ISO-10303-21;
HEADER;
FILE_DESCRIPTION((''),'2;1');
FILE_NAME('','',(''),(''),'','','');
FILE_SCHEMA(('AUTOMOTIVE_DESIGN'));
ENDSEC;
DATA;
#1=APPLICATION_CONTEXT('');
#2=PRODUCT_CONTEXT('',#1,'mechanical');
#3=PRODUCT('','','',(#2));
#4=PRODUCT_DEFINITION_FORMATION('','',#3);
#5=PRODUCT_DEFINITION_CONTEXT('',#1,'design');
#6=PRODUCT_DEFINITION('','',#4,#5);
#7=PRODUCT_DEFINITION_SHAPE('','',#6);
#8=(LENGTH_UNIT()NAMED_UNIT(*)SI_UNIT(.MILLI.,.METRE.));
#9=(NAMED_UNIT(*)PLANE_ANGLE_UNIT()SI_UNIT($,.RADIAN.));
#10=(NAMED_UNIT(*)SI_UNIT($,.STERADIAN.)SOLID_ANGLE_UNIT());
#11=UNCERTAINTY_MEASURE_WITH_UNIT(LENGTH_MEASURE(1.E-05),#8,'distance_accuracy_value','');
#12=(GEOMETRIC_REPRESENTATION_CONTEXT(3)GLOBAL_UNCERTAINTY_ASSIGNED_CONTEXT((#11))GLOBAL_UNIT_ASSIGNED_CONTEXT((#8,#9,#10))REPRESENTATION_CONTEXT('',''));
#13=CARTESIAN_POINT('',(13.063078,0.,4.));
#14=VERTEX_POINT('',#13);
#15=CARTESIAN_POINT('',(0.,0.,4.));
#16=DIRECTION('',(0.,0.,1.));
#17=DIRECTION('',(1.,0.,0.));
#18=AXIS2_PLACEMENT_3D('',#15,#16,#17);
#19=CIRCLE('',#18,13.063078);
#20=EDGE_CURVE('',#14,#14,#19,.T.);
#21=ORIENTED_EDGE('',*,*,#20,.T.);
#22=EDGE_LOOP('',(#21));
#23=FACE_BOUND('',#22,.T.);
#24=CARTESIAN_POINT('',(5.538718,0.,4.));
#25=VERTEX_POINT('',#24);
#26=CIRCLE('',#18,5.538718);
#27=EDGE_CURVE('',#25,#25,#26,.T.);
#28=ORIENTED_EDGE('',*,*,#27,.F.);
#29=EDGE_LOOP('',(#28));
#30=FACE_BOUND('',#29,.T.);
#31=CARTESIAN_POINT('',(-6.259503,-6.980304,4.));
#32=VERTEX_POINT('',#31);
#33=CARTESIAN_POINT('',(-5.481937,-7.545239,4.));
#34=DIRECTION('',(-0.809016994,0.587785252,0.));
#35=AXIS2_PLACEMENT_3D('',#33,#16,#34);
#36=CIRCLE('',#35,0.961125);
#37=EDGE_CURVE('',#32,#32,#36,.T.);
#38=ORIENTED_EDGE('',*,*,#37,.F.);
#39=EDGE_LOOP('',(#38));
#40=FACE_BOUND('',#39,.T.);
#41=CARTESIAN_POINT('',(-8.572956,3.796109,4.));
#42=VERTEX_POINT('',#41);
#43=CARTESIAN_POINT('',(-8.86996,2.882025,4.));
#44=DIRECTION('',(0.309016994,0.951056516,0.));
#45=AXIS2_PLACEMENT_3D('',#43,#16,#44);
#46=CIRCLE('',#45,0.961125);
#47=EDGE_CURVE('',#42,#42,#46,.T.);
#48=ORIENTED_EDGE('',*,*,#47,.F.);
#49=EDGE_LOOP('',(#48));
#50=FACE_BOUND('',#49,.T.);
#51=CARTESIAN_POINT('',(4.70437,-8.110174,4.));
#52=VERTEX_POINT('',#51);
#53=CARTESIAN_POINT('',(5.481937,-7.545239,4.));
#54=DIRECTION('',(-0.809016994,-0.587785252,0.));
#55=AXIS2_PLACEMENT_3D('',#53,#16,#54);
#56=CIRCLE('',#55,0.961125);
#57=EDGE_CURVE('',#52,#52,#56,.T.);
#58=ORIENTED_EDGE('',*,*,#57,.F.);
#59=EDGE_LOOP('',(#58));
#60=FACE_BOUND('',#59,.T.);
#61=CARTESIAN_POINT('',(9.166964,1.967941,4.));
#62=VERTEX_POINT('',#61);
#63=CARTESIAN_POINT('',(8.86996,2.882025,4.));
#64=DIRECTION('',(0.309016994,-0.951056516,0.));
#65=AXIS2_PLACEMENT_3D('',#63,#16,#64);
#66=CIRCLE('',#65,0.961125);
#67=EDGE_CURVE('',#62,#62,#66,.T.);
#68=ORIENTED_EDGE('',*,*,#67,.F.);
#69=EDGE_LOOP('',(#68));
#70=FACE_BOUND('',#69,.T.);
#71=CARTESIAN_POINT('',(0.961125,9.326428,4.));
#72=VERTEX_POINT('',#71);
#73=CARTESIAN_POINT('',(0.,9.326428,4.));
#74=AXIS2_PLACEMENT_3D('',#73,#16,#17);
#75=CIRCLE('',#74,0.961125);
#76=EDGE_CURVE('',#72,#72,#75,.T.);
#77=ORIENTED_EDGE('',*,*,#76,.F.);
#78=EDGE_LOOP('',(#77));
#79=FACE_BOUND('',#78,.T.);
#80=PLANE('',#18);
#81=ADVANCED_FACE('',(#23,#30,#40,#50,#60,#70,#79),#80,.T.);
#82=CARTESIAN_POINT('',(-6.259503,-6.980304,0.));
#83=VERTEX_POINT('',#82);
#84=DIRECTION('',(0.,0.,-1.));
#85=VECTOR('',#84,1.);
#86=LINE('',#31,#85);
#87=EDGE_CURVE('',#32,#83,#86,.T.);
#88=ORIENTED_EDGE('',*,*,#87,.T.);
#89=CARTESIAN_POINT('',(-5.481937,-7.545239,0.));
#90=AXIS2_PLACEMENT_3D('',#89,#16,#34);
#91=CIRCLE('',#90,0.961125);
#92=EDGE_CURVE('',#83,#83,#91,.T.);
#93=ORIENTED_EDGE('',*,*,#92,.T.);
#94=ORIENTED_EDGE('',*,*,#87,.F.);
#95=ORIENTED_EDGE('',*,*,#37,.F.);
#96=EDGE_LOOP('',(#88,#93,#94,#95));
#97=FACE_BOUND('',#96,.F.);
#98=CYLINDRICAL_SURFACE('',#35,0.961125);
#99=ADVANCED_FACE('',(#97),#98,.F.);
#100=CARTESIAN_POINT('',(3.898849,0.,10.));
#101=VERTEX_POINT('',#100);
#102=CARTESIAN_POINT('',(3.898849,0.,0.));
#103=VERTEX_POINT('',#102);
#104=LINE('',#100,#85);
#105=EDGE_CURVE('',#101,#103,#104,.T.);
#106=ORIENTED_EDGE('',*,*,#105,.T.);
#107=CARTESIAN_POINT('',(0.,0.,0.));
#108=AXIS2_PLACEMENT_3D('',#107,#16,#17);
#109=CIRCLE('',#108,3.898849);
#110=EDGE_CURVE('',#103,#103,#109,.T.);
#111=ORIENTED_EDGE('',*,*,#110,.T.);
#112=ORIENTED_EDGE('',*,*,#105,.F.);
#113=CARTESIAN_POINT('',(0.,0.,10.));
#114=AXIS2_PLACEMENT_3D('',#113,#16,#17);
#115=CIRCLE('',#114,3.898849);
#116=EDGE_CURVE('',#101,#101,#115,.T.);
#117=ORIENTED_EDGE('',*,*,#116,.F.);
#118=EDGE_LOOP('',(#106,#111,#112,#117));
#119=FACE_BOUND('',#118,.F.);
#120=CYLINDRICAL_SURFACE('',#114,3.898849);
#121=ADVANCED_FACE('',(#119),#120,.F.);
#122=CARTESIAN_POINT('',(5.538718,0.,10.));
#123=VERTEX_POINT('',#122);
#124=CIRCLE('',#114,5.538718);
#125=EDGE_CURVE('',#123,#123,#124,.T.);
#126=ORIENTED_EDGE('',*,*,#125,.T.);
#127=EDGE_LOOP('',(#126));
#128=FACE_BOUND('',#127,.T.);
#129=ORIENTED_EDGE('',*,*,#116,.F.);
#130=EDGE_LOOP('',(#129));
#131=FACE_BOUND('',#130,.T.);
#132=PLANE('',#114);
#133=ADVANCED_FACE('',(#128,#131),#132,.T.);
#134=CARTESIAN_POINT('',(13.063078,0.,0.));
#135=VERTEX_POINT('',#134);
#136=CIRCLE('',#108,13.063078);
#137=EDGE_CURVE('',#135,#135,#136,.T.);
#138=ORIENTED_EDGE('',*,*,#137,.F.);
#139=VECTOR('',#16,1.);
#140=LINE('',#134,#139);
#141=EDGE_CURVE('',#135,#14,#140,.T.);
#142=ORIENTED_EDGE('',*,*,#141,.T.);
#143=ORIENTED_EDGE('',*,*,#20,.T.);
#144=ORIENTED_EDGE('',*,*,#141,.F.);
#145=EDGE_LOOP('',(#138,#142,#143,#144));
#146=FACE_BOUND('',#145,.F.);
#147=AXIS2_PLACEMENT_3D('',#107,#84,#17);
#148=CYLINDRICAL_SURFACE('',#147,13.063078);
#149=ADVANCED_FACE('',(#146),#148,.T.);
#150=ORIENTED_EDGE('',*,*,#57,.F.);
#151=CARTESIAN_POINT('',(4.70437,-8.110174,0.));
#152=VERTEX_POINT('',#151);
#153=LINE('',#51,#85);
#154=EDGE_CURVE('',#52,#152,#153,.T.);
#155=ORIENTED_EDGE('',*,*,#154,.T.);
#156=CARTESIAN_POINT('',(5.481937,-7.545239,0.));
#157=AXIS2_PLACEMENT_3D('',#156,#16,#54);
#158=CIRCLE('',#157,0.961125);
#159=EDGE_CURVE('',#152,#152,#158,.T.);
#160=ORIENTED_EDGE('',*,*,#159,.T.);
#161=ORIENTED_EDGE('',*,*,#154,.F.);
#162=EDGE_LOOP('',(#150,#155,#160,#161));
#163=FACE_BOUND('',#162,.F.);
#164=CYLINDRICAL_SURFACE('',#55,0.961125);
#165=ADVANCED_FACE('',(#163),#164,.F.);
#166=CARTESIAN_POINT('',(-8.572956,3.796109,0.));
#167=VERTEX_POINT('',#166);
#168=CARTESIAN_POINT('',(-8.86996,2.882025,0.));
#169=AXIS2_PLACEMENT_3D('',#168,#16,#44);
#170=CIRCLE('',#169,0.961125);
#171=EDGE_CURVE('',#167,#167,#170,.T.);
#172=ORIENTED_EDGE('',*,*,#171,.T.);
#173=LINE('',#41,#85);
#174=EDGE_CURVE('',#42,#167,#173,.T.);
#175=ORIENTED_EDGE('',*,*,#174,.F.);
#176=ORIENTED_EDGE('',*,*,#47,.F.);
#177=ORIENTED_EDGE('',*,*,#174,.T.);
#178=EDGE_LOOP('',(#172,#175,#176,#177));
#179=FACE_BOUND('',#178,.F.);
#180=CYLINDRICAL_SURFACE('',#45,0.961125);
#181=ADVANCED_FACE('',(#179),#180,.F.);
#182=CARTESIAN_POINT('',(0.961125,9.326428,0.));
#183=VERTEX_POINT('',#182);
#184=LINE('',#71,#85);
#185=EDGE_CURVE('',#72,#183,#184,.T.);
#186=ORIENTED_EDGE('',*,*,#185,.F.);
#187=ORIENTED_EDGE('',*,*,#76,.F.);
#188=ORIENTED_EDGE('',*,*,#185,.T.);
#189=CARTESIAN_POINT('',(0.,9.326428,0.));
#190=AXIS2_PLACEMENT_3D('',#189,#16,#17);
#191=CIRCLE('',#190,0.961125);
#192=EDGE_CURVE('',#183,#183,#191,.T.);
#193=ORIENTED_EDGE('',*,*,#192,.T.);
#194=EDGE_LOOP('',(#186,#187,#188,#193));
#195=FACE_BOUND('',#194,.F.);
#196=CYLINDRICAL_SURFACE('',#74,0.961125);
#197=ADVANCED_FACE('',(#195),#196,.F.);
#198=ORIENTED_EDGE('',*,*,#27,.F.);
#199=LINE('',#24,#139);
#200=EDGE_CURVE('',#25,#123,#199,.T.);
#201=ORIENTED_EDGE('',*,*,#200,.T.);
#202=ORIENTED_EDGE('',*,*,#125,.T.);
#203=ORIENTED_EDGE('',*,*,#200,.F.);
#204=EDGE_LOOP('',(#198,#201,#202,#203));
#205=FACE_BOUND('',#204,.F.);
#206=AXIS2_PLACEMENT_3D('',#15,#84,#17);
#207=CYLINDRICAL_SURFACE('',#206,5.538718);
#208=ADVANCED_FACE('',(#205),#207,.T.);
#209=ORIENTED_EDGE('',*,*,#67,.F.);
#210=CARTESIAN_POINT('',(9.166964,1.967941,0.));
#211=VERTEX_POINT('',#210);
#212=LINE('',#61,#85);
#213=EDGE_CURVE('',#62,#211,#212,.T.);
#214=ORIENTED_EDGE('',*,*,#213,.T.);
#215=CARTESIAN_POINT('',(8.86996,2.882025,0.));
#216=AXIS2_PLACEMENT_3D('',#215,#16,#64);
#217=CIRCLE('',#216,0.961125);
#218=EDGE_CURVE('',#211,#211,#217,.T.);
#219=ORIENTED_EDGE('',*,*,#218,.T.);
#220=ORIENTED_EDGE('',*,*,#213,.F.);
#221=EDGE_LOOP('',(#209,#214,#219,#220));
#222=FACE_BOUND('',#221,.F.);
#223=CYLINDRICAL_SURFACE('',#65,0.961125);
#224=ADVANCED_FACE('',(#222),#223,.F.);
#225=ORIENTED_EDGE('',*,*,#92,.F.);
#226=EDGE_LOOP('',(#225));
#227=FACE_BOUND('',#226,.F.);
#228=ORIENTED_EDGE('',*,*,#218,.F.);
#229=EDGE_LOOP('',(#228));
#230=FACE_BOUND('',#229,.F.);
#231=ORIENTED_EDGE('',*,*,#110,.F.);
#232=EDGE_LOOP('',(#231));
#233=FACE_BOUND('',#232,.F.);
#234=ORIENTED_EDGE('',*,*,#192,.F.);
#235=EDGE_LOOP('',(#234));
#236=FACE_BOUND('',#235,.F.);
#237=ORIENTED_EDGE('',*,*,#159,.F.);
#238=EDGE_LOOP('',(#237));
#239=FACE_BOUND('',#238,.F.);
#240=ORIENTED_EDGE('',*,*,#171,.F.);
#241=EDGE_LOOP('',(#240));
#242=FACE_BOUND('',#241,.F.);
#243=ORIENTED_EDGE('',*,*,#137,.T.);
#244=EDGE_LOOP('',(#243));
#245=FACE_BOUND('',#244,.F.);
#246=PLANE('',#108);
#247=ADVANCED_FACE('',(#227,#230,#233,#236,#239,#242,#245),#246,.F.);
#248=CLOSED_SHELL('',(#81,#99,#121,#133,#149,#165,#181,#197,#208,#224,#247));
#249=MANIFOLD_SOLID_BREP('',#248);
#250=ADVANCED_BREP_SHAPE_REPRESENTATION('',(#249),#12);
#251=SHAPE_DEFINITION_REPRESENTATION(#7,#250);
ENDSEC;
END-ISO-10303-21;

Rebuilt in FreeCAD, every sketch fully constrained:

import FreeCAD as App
import Part
import Sketcher

V = App.Vector

doc = App.newDocument("Part")
body = doc.addObject("PartDesign::Body", "Body")

# Sketch on XY plane
sketch1 = body.newObject("Sketcher::SketchObject", "Sketch")
sketch1.AttachmentSupport = (doc.getObject("XY_Plane"), [""])
sketch1.MapMode = "FlatFace"
sketch1.addGeometry(Part.Circle(V(0, 0, 0), V(0, 0, 1), 13.063078), False)
sketch1.addConstraint(Sketcher.Constraint("Coincident", 0, 3, -1, 1))
sketch1.addConstraint(Sketcher.Constraint("Diameter", 0, 26.126156))
pad1 = body.newObject("PartDesign::Pad", "Pad")
pad1.Profile = sketch1
pad1.Length = 4

# Sketch on XY plane
sketch2 = body.newObject("Sketcher::SketchObject", "Sketch001")
sketch2.AttachmentSupport = (doc.getObject("XY_Plane"), [""])
sketch2.MapMode = "FlatFace"
sketch2.AttachmentOffset = App.Placement(V(0, 0, 4), App.Rotation())
sketch2.addGeometry(Part.Circle(V(0, 9.326428, 0), V(0, 0, 1), 0.961125), False)
sketch2.addConstraint(Sketcher.Constraint("PointOnObject", 0, 3, -2))
sketch2.addConstraint(Sketcher.Constraint("Diameter", 0, 1.92225))
sketch2.addConstraint(Sketcher.Constraint("DistanceY", -1, 1, 0, 3, 9.326428))
pocket1 = body.newObject("PartDesign::Pocket", "Pocket")
pocket1.Profile = sketch2
pocket1.Type = "ThroughAll"
doc.recompute()

polarpattern = body.newObject("PartDesign::PolarPattern", "PolarPattern")
polarpattern.Originals = [pocket1]
polarpattern.Axis = (doc.getObject("Z_Axis"), [""])
polarpattern.Angle = 360
polarpattern.Occurrences = 5
body.Tip = polarpattern

# Sketch on XY plane
sketch3 = body.newObject("Sketcher::SketchObject", "Sketch002")
sketch3.AttachmentSupport = (doc.getObject("XY_Plane"), [""])
sketch3.MapMode = "FlatFace"
sketch3.AttachmentOffset = App.Placement(V(0, 0, 4), App.Rotation())
sketch3.addGeometry(Part.Circle(V(0, 0, 0), V(0, 0, 1), 5.538718), False)
sketch3.addConstraint(Sketcher.Constraint("Coincident", 0, 3, -1, 1))
sketch3.addConstraint(Sketcher.Constraint("Diameter", 0, 11.077436))
pad2 = body.newObject("PartDesign::Pad", "Pad001")
pad2.Profile = sketch3
pad2.Length = 6

# Sketch on XY plane
sketch4 = body.newObject("Sketcher::SketchObject", "Sketch003")
sketch4.AttachmentSupport = (doc.getObject("XY_Plane"), [""])
sketch4.MapMode = "FlatFace"
sketch4.AttachmentOffset = App.Placement(V(0, 0, 10), App.Rotation())
sketch4.addGeometry(Part.Circle(V(0, 0, 0), V(0, 0, 1), 3.898849), False)
sketch4.addConstraint(Sketcher.Constraint("Coincident", 0, 3, -1, 1))
sketch4.addConstraint(Sketcher.Constraint("Diameter", 0, 7.797698))
pocket2 = body.newObject("PartDesign::Pocket", "Pocket001")
pocket2.Profile = sketch4
pocket2.Type = "ThroughAll"

doc.recompute()
